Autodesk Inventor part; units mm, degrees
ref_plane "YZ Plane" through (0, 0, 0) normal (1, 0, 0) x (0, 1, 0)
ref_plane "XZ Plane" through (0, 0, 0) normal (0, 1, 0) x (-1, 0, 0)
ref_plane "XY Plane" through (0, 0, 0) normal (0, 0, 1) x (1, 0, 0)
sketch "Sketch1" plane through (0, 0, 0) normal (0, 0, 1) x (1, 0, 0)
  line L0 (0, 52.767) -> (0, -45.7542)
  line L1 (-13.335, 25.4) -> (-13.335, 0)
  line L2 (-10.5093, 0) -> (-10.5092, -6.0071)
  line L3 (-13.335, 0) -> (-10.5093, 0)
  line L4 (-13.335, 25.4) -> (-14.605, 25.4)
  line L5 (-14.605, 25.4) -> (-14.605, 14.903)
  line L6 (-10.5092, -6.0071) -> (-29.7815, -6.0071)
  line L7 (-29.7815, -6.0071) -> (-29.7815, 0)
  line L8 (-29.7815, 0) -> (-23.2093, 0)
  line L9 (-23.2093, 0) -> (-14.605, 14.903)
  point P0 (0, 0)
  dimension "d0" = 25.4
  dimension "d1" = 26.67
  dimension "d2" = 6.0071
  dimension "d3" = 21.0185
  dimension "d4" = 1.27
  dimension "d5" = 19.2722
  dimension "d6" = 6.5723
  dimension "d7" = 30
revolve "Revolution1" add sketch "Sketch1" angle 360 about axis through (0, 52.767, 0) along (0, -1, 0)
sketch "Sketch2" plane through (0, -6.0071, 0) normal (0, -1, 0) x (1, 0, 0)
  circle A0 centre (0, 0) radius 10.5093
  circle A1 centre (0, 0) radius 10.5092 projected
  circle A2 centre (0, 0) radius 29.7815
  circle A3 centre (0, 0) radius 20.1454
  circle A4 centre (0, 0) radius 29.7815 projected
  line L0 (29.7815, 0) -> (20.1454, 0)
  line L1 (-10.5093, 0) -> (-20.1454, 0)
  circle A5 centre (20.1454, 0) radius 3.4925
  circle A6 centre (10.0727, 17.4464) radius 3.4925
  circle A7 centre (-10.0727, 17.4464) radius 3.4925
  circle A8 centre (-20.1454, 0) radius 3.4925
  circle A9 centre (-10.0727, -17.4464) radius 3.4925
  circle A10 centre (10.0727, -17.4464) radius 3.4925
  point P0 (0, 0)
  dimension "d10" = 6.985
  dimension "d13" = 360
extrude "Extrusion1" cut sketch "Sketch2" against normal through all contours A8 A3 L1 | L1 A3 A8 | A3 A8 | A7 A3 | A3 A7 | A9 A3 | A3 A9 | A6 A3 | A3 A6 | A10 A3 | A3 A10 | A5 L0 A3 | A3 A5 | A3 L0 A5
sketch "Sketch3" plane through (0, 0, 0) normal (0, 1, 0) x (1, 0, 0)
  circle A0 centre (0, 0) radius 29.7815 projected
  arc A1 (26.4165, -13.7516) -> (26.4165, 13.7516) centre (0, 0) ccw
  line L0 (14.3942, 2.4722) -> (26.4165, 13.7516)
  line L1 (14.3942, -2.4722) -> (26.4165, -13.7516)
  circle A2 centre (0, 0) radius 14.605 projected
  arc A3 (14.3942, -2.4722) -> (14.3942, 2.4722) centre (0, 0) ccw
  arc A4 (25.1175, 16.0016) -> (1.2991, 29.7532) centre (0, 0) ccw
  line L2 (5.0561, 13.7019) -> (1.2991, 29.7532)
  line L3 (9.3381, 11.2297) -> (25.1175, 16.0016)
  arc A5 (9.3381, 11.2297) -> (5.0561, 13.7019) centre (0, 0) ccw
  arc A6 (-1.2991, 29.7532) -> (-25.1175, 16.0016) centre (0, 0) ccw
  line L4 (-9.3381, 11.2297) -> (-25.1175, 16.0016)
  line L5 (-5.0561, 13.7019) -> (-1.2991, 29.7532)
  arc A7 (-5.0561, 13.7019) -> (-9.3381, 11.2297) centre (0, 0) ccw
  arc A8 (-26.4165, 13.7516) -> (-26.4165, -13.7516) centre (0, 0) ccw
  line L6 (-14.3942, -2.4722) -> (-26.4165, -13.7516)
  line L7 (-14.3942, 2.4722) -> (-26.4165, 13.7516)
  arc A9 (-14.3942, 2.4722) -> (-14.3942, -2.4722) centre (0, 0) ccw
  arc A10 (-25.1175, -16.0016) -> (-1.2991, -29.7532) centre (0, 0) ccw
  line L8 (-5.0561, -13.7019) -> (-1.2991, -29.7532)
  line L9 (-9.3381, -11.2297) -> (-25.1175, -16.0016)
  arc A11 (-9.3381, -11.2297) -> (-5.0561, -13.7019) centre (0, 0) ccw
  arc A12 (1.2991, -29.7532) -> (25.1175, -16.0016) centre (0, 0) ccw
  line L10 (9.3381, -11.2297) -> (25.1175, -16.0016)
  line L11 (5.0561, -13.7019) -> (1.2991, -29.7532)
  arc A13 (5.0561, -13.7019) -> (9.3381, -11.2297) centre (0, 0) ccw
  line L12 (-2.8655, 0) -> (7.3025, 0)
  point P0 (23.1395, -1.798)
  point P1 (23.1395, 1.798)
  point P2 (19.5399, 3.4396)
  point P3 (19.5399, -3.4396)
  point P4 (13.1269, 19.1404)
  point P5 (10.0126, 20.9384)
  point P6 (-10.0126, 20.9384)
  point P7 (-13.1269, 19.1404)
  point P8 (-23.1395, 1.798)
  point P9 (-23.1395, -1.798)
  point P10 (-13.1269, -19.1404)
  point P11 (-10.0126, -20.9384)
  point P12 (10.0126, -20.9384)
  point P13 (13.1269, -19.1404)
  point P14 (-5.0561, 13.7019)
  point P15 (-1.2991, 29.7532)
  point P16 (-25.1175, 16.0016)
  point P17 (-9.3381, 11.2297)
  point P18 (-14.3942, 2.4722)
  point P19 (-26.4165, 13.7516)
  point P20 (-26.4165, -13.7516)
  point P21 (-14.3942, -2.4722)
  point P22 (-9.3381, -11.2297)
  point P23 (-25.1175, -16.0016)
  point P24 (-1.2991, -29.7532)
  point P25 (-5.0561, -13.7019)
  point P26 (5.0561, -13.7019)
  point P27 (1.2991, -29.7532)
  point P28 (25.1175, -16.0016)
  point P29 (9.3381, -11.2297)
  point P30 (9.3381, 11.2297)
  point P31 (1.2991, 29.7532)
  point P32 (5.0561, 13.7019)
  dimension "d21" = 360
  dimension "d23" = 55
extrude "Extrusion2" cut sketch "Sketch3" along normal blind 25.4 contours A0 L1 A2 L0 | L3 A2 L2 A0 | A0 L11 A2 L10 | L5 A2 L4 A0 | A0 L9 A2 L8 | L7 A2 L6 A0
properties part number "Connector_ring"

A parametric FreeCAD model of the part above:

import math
import FreeCAD as App
import Part
import Sketcher
Q = App.Units.Quantity


def add_polygon(sketch, points):
    """Adds a closed chain of lines whose ends are joined by coincident constraints."""
    first, n = sketch.GeometryCount, len(points)
    for a, b in zip(points, points[1:] + points[:1]):
        sketch.addGeometry(Part.LineSegment(App.Vector(*a, 0), App.Vector(*b, 0)), False)
    for i in range(n):
        sketch.addConstraint(Sketcher.Constraint("Coincident", first + i, 2, first + (i + 1) % n, 1))

doc = App.newDocument("Part")
body = doc.addObject("PartDesign::Body", "Body")

sketch1 = body.newObject("Sketcher::SketchObject", "Sketch")
sketch1.AttachmentSupport = (doc.getObject("XY_Plane"), [""])
sketch1.MapMode = "FlatFace"
add_polygon(sketch1, [(-13.3, 0), (-13.3, 25.4), (-14.6, 25.4), (-14.6, 14.9), (-23.2, 0), (-29.8, 0), (-29.8, -6), (-10.5, -6), (-10.5, 0)])
sketch1.addConstraint([
    Sketcher.Constraint("Vertical", 0),
    Sketcher.Constraint("Horizontal", 1),
    Sketcher.Constraint("Vertical", 2),
    Sketcher.Constraint("Horizontal", 4),
    Sketcher.Constraint("Vertical", 5),
    Sketcher.Constraint("Horizontal", 6),
    Sketcher.Constraint("Vertical", 7),
    Sketcher.Constraint("Horizontal", 8),
    Sketcher.Constraint("PointOnObject", 3, 2, -1),
    Sketcher.Constraint("PointOnObject", 7, 2, -1),
    Sketcher.Constraint("DistanceY", 0, 1, 0, 2, Q("1 in")),
    Sketcher.Constraint("DistanceX", 1, 2, 1, 1, Q("0.05 in")),
    Sketcher.Constraint("DistanceY", 5, 2, 5, 1, Q("0.2365 in")),
    Sketcher.Constraint("Angle", 3, Q("-120.0001 deg")),
    Sketcher.Constraint("DistanceX", 4, 2, 4, 1, Q("6.5722 mm")),
    Sketcher.Constraint("DistanceX", 6, 1, 6, 2, Q("19.2723 mm")),
    Sketcher.Constraint("DistanceX", 0, 2, -1, 1, Q("0.525 in")),
    Sketcher.Constraint("Distance", 3, Q("0.6775 in")),
])
revolution = body.newObject("PartDesign::Revolution", "Revolution")
revolution.Profile = sketch1
revolution.ReferenceAxis = (sketch1, ["V_Axis"])
revolution.Angle = 360

sketch2 = body.newObject("Sketcher::SketchObject", "Sketch001")
sketch2.AttachmentSupport = (doc.getObject("XZ_Plane"), [""])
sketch2.MapMode = "FlatFace"
sketch2.AttachmentOffset = App.Placement(App.Vector(0, 0, 0.2365 * 25.4), App.Rotation())
sketch2.addGeometry([
    Part.Circle(App.Vector(-20.1, 0, 0), App.Vector(0, 0, 1), 3.5),
    Part.Circle(App.Vector(-10.1, 17.4, 0), App.Vector(0, 0, 1), 3.5),
    Part.Circle(App.Vector(-10.1, -17.4, 0), App.Vector(0, 0, 1), 3.5),
    Part.Circle(App.Vector(10.1, 17.4, 0), App.Vector(0, 0, 1), 3.5),
    Part.Circle(App.Vector(10.1, -17.4, 0), App.Vector(0, 0, 1), 3.5),
    Part.Circle(App.Vector(20.1, 0, 0), App.Vector(0, 0, 1), 3.5),
], False)
sketch2.addConstraint([
    Sketcher.Constraint("Equal", 0, 1),
    Sketcher.Constraint("Equal", 1, 2),
    Sketcher.Constraint("Equal", 2, 3),
    Sketcher.Constraint("Equal", 3, 4),
    Sketcher.Constraint("Equal", 4, 5),
    Sketcher.Constraint("Symmetric", 2, 3, 3, 3, -1, 1),
    Sketcher.Constraint("Symmetric", 1, 3, 4, 3, -1, 1),
    Sketcher.Constraint("Symmetric", 0, 3, 5, 3, -1, 1),
    Sketcher.Constraint("Symmetric", 1, 3, 3, 3, -2),
    Sketcher.Constraint("PointOnObject", 0, 3, -1),
    Sketcher.Constraint("Diameter", 0, Q("0.275 in")),
    Sketcher.Constraint("DistanceX", 0, 3, 3, 3, Q("1.1897 in")),
    Sketcher.Constraint("DistanceX", 0, 3, -1, 1, Q("20.1454 mm")),
    Sketcher.Constraint("DistanceY", -1, 1, 1, 3, Q("17.4464 mm")),
])
pocket1 = body.newObject("PartDesign::Pocket", "Pocket")
pocket1.Profile = sketch2
pocket1.Type = "ThroughAll"

sketch3 = body.newObject("Sketcher::SketchObject", "Sketch002")
sketch3.AttachmentSupport = (doc.getObject("XZ_Plane"), [""])
sketch3.MapMode = "FlatFace"
sketch3.addGeometry([
    Part.ArcOfCircle(Part.Circle(App.Vector(0, 0, 0), App.Vector(0, 0, 1), 29.8), math.radians(-28), math.radians(28)),
    Part.LineSegment(App.Vector(26.4, -13.8, 0), App.Vector(14.4, -2.5, 0)),
    Part.ArcOfCircle(Part.Circle(App.Vector(0, 0, 0), App.Vector(0, 0, 1), 14.6), math.radians(-9.75), math.radians(9.75)),
    Part.LineSegment(App.Vector(14.4, 2.5, 0), App.Vector(26.4, 13.8, 0)),
    Part.LineSegment(App.Vector(9.3, -11.2, 0), App.Vector(25.1, -16, 0)),
    Part.ArcOfCircle(Part.Circle(App.Vector(0, 0, 0), App.Vector(0, 0, 1), 29.8), math.radians(-87), math.radians(-32)),
    Part.LineSegment(App.Vector(1.3, -29.8, 0), App.Vector(5.1, -13.7, 0)),
    Part.ArcOfCircle(Part.Circle(App.Vector(0, 0, 0), App.Vector(0, 0, 1), 14.6), math.radians(-69.75), math.radians(-50.25)),
    Part.ArcOfCircle(Part.Circle(App.Vector(0, 0, 0), App.Vector(0, 0, 1), 29.8), math.radians(32), math.radians(87)),
    Part.LineSegment(App.Vector(25.1, 16, 0), App.Vector(9.3, 11.2, 0)),
    Part.ArcOfCircle(Part.Circle(App.Vector(0, 0, 0), App.Vector(0, 0, 1), 14.6), math.radians(50.25), math.radians(69.75)),
    Part.LineSegment(App.Vector(5.1, 13.7, 0), App.Vector(1.3, 29.8, 0)),
    Part.LineSegment(App.Vector(-5.1, -13.7, 0), App.Vector(-1.3, -29.8, 0)),
    Part.ArcOfCircle(Part.Circle(App.Vector(0, 0, 0), App.Vector(0, 0, 1), 29.8), math.radians(-148), math.radians(-93)),
    Part.LineSegment(App.Vector(-25.1, -16, 0), App.Vector(-9.3, -11.2, 0)),
    Part.ArcOfCircle(Part.Circle(App.Vector(0, 0, 0), App.Vector(0, 0, 1), 14.6), math.radians(-129.75), math.radians(-110.25)),
    Part.ArcOfCircle(Part.Circle(App.Vector(0, 0, 0), App.Vector(0, 0, 1), 29.8), math.radians(93), math.radians(148)),
    Part.LineSegment(App.Vector(-1.3, 29.8, 0), App.Vector(-5.1, 13.7, 0)),
    Part.ArcOfCircle(Part.Circle(App.Vector(0, 0, 0), App.Vector(0, 0, 1), 14.6), math.radians(110.25), math.radians(129.75)),
    Part.LineSegment(App.Vector(-9.3, 11.2, 0), App.Vector(-25.1, 16, 0)),
    Part.LineSegment(App.Vector(-14.4, -2.5, 0), App.Vector(-26.4, -13.8, 0)),
    Part.ArcOfCircle(Part.Circle(App.Vector(0, 0, 0), App.Vector(0, 0, 1), 29.8), math.radians(152), math.radians(208)),
    Part.LineSegment(App.Vector(-26.4, 13.8, 0), App.Vector(-14.4, 2.5, 0)),
    Part.ArcOfCircle(Part.Circle(App.Vector(0, 0, 0), App.Vector(0, 0, 1), 14.6), math.radians(170.25), math.radians(189.75)),
], False)
sketch3.addConstraint([
    Sketcher.Constraint("Coincident", 0, 1, 1, 1),
    Sketcher.Constraint("Coincident", 1, 2, 2, 1),
    Sketcher.Constraint("Coincident", 2, 2, 3, 1),
    Sketcher.Constraint("Coincident", 3, 2, 0, 2),
    Sketcher.Constraint("Coincident", 4, 2, 5, 2),
    Sketcher.Constraint("Coincident", 5, 1, 6, 1),
    Sketcher.Constraint("Coincident", 6, 2, 7, 1),
    Sketcher.Constraint("Coincident", 7, 2, 4, 1),
    Sketcher.Constraint("Coincident", 8, 1, 9, 1),
    Sketcher.Constraint("Coincident", 9, 2, 10, 1),
    Sketcher.Constraint("Coincident", 10, 2, 11, 1),
    Sketcher.Constraint("Coincident", 11, 2, 8, 2),
    Sketcher.Constraint("Coincident", 12, 2, 13, 2),
    Sketcher.Constraint("Coincident", 13, 1, 14, 1),
    Sketcher.Constraint("Coincident", 14, 2, 15, 1),
    Sketcher.Constraint("Coincident", 15, 2, 12, 1),
    Sketcher.Constraint("Coincident", 16, 1, 17, 1),
    Sketcher.Constraint("Coincident", 17, 2, 18, 1),
    Sketcher.Constraint("Coincident", 18, 2, 19, 1),
    Sketcher.Constraint("Coincident", 19, 2, 16, 2),
    Sketcher.Constraint("Coincident", 20, 2, 21, 2),
    Sketcher.Constraint("Coincident", 21, 1, 22, 1),
    Sketcher.Constraint("Coincident", 22, 2, 23, 1),
    Sketcher.Constraint("Coincident", 23, 2, 20, 1),
    Sketcher.Constraint("Coincident", 0, 3, -1, 1),
    Sketcher.Constraint("Coincident", 2, 3, -1, 1),
    Sketcher.Constraint("Coincident", 5, 3, -1, 1),
    Sketcher.Constraint("Coincident", 7, 3, -1, 1),
    Sketcher.Constraint("Coincident", 8, 3, -1, 1),
    Sketcher.Constraint("Coincident", 10, 3, -1, 1),
    Sketcher.Constraint("Coincident", 13, 3, -1, 1),
    Sketcher.Constraint("Coincident", 15, 3, -1, 1),
    Sketcher.Constraint("Coincident", 16, 3, -1, 1),
    Sketcher.Constraint("Coincident", 18, 3, -1, 1),
    Sketcher.Constraint("Coincident", 21, 3, -1, 1),
    Sketcher.Constraint("Coincident", 23, 3, -1, 1),
    Sketcher.Constraint("Equal", 0, 5),
    Sketcher.Constraint("Equal", 2, 7),
    Sketcher.Constraint("Equal", 5, 8),
    Sketcher.Constraint("Equal", 7, 10),
    Sketcher.Constraint("Equal", 8, 13),
    Sketcher.Constraint("Equal", 10, 15),
    Sketcher.Constraint("Equal", 13, 16),
    Sketcher.Constraint("Equal", 15, 18),
    Sketcher.Constraint("Equal", 16, 21),
    Sketcher.Constraint("Equal", 18, 23),
    Sketcher.Constraint("Parallel", 11, 12),
    Sketcher.Constraint("Parallel", 9, 14),
    Sketcher.Constraint("Parallel", 6, 17),
    Sketcher.Constraint("Parallel", 4, 19),
    Sketcher.Constraint("Parallel", 3, 20),
    Sketcher.Constraint("Parallel", 1, 22),
    Sketcher.Constraint("Horizontal", 5, 1, 12, 2),
    Sketcher.Constraint("Horizontal", 4, 2, 13, 1),
    Sketcher.Constraint("Horizontal", 7, 2, 14, 2),
    Sketcher.Constraint("Horizontal", 6, 2, 15, 2),
    Sketcher.Constraint("Horizontal", 11, 2, 16, 1),
    Sketcher.Constraint("Horizontal", 9, 2, 18, 2),
    Sketcher.Constraint("Horizontal", 0, 1, 20, 2),
    Sketcher.Constraint("Horizontal", 3, 2, 21, 1),
    Sketcher.Constraint("Horizontal", 2, 2, 22, 2),
    Sketcher.Constraint("Vertical", 1, 2, 2, 2),
    Sketcher.Constraint("Vertical", 4, 2, 8, 1),
    Sketcher.Constraint("Vertical", 6, 2, 10, 2),
    Sketcher.Constraint("Equal", 3, 4),
    Sketcher.Constraint("Equal", 4, 6),
    Sketcher.Constraint("Radius", 2, Q("0.575 in")),
    Sketcher.Constraint("Radius", 0, Q("1.1725 in")),
    Sketcher.Constraint("DistanceY", 0, 1, -1, 1, Q("0.5414 in")),
    Sketcher.Constraint("DistanceX", -1, 1, 1, 2, Q("0.5667 in")),
    Sketcher.Constraint("DistanceY", 5, 1, 4, 2, Q("0.5414 in")),
    Sketcher.Constraint("DistanceX", 11, 2, 9, 2, Q("0.3165 in")),
])
pocket2 = body.newObject("PartDesign::Pocket", "Pocket001")
pocket2.Profile = sketch3
pocket2.Length = Q("1 in")

doc.recompute()
